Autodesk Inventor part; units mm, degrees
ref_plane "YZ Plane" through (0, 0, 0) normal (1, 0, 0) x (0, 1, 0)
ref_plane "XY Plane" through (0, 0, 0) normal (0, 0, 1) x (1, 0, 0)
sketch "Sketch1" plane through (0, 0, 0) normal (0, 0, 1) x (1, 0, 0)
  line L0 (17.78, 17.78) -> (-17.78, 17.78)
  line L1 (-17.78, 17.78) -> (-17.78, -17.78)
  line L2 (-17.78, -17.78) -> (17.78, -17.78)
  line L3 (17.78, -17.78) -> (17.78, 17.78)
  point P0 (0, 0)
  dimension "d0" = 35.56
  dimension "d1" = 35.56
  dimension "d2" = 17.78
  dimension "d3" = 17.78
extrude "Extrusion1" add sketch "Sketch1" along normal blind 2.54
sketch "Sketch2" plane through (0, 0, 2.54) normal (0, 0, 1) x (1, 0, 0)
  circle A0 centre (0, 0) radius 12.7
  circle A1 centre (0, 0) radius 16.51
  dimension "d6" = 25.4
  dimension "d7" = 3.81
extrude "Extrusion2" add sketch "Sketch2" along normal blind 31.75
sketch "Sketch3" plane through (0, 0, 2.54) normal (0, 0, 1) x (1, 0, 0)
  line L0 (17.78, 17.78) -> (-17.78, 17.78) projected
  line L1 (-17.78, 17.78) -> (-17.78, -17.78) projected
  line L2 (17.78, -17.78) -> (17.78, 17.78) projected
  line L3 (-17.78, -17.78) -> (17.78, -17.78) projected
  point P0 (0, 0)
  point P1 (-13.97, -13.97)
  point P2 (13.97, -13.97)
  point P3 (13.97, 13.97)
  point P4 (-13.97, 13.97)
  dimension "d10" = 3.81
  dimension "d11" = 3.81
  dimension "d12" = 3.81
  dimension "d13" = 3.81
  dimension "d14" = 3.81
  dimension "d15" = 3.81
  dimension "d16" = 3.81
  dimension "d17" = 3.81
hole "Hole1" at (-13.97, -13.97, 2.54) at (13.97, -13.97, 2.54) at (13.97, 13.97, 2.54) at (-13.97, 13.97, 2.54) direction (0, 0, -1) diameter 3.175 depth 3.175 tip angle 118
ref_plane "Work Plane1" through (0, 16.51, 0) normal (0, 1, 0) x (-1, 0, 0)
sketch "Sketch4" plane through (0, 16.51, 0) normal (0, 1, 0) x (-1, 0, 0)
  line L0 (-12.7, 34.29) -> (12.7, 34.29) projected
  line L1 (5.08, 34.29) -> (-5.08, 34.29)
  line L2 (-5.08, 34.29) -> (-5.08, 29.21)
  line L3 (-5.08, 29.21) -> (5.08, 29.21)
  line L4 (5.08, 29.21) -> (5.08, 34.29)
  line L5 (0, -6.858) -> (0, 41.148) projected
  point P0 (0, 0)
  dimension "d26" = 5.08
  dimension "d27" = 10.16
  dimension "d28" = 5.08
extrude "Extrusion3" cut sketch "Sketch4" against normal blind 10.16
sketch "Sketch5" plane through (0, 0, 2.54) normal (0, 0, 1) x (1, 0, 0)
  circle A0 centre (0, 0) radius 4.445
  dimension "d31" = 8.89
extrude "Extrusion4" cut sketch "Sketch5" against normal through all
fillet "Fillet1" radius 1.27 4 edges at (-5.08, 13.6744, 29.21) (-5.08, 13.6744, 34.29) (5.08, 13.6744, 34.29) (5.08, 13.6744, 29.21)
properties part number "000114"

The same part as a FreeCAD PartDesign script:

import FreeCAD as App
import Part
import Sketcher
Q = App.Units.Quantity


def edges_at(feature, points):
    """Names of the edges that pass closest to the given points."""
    edges = feature.Shape.Edges
    near = lambda p: min(range(len(edges)), key=lambda i: edges[i].distToShape(Part.Vertex(*p))[0])
    return sorted({f"Edge{near(p) + 1}" for p in points})


def add_polygon(sketch, points):
    """Adds a closed chain of lines whose ends are joined by coincident constraints."""
    first, n = sketch.GeometryCount, len(points)
    for a, b in zip(points, points[1:] + points[:1]):
        sketch.addGeometry(Part.LineSegment(App.Vector(*a, 0), App.Vector(*b, 0)), False)
    for i in range(n):
        sketch.addConstraint(Sketcher.Constraint("Coincident", first + i, 2, first + (i + 1) % n, 1))

doc = App.newDocument("Part")
body = doc.addObject("PartDesign::Body", "Body")

# Sketch on XY plane
sketch1 = body.newObject("Sketcher::SketchObject", "Sketch")
sketch1.AttachmentSupport = (doc.getObject("XY_Plane"), [""])
sketch1.MapMode = "FlatFace"
add_polygon(sketch1, [(18, -18), (18, 18), (-18, 18), (-18, -18)])  # lines 0-3
sketch1.addConstraint([
    Sketcher.Constraint("Vertical", 0),
    Sketcher.Constraint("Horizontal", 1),
    Sketcher.Constraint("Vertical", 2),
    Sketcher.Constraint("Horizontal", 3),
    Sketcher.Constraint("Symmetric", 0, 2, 2, 2, -1, 1),
    Sketcher.Constraint("Equal", 3, 0),
    Sketcher.Constraint("DistanceX", 1, 2, 1, 1, Q("1.4 in")),
])
pad1 = body.newObject("PartDesign::Pad", "Pad")
pad1.Profile = sketch1
pad1.Length = Q("0.1 in")

# Sketch on XY plane
sketch2 = body.newObject("Sketcher::SketchObject", "Sketch001")
sketch2.AttachmentSupport = (doc.getObject("XY_Plane"), [""])
sketch2.MapMode = "FlatFace"
sketch2.AttachmentOffset = App.Placement(App.Vector(0, 0, 0.1 * 25.4), App.Rotation())
sketch2.addGeometry([
    Part.Circle(App.Vector(0, 0, 0), App.Vector(0, 0, 1), 17),
    Part.Circle(App.Vector(0, 0, 0), App.Vector(0, 0, 1), 13),
], False)
sketch2.addConstraint([
    Sketcher.Constraint("Coincident", 0, 3, -1, 1),
    Sketcher.Constraint("Coincident", 1, 3, -1, 1),
    Sketcher.Constraint("Diameter", 1, Q("1 in")),
    Sketcher.Constraint("Diameter", 0, Q("1.3 in")),
])
pad2 = body.newObject("PartDesign::Pad", "Pad001")
pad2.Profile = sketch2
pad2.Length = Q("1.25 in")

# Sketch on XY plane
sketch3 = body.newObject("Sketcher::SketchObject", "Sketch002")
sketch3.AttachmentSupport = (doc.getObject("XY_Plane"), [""])
sketch3.MapMode = "FlatFace"
sketch3.AttachmentOffset = App.Placement(App.Vector(0, 0, 0.1 * 25.4), App.Rotation())
sketch3.addGeometry([
    Part.Circle(App.Vector(-14, -14, 0), App.Vector(0, 0, 1), 1.6),
    Part.Circle(App.Vector(14, -14, 0), App.Vector(0, 0, 1), 1.6),
    Part.Circle(App.Vector(14, 14, 0), App.Vector(0, 0, 1), 1.6),
    Part.Circle(App.Vector(-14, 14, 0), App.Vector(0, 0, 1), 1.6),
], False)
sketch3.addConstraint([
    Sketcher.Constraint("Equal", 0, 1),
    Sketcher.Constraint("Equal", 1, 2),
    Sketcher.Constraint("Equal", 2, 3),
    Sketcher.Constraint("Symmetric", 0, 3, 2, 3, -1, 1),
    Sketcher.Constraint("Symmetric", 1, 3, 3, 3, -1, 1),
    Sketcher.Constraint("Symmetric", 0, 3, 1, 3, -2),
    Sketcher.Constraint("Diameter", 0, Q("0.125 in")),
    Sketcher.Constraint("DistanceX", 0, 3, 1, 3, Q("1.1 in")),
    Sketcher.Constraint("DistanceY", 1, 3, 2, 3, Q("1.1 in")),
])
doc.recompute()
hole = body.newObject("PartDesign::Hole", "Hole")
hole.Profile = sketch3
hole.ThreadType = "None"
hole.Diameter = Q("0.125 in")
hole.DepthType = "Dimension"
hole.Depth = Q("0.125 in")
hole.DrillPoint = "Angled"
hole.DrillPointAngle = 118

# Sketch on XZ plane
sketch4 = body.newObject("Sketcher::SketchObject", "Sketch003")
sketch4.AttachmentSupport = (doc.getObject("XZ_Plane"), [""])
sketch4.MapMode = "FlatFace"
sketch4.AttachmentOffset = App.Placement(App.Vector(0, 0, -0.65 * 25.4), App.Rotation())
add_polygon(sketch4, [(5, 34), (5, 29), (-5, 29), (-5, 34)])  # lines 0-3
sketch4.addConstraint([
    Sketcher.Constraint("Vertical", 0),
    Sketcher.Constraint("Horizontal", 1),
    Sketcher.Constraint("Vertical", 2),
    Sketcher.Constraint("Horizontal", 3),
    Sketcher.Constraint("DistanceX", 1, 2, 1, 1, Q("0.4 in")),
    Sketcher.Constraint("DistanceY", 0, 2, 0, 1, Q("0.2 in")),
    Sketcher.Constraint("DistanceX", -1, 1, 0, 2, Q("0.2 in")),
    Sketcher.Constraint("DistanceY", -1, 1, 0, 2, Q("1.15 in")),
])
pocket1 = body.newObject("PartDesign::Pocket", "Pocket")
pocket1.Profile = sketch4
pocket1.Length = Q("0.4 in")
pocket1.Reversed = True

# Sketch on XY plane
sketch5 = body.newObject("Sketcher::SketchObject", "Sketch004")
sketch5.AttachmentSupport = (doc.getObject("XY_Plane"), [""])
sketch5.MapMode = "FlatFace"
sketch5.AttachmentOffset = App.Placement(App.Vector(0, 0, 0.1 * 25.4), App.Rotation())
sketch5.addGeometry(Part.Circle(App.Vector(0, 0, 0), App.Vector(0, 0, 1), 4.4), False)
sketch5.addConstraint([
    Sketcher.Constraint("Coincident", 0, 3, -1, 1),
    Sketcher.Constraint("Diameter", 0, Q("0.35 in")),
])
pocket2 = body.newObject("PartDesign::Pocket", "Pocket001")
pocket2.Profile = sketch5
pocket2.Type = "ThroughAll"
doc.recompute()

fillet = body.newObject("PartDesign::Fillet", "Fillet")
fillet.Base = (pocket2, edges_at(pocket2, [
    (-5.08, 13.674, 29.21),
    (-5.08, 13.674, 34.29),
    (5.08, 13.674, 34.29),
    (5.08, 13.674, 29.21),
]))
fillet.Radius = Q("0.05 in")

doc.recompute()
